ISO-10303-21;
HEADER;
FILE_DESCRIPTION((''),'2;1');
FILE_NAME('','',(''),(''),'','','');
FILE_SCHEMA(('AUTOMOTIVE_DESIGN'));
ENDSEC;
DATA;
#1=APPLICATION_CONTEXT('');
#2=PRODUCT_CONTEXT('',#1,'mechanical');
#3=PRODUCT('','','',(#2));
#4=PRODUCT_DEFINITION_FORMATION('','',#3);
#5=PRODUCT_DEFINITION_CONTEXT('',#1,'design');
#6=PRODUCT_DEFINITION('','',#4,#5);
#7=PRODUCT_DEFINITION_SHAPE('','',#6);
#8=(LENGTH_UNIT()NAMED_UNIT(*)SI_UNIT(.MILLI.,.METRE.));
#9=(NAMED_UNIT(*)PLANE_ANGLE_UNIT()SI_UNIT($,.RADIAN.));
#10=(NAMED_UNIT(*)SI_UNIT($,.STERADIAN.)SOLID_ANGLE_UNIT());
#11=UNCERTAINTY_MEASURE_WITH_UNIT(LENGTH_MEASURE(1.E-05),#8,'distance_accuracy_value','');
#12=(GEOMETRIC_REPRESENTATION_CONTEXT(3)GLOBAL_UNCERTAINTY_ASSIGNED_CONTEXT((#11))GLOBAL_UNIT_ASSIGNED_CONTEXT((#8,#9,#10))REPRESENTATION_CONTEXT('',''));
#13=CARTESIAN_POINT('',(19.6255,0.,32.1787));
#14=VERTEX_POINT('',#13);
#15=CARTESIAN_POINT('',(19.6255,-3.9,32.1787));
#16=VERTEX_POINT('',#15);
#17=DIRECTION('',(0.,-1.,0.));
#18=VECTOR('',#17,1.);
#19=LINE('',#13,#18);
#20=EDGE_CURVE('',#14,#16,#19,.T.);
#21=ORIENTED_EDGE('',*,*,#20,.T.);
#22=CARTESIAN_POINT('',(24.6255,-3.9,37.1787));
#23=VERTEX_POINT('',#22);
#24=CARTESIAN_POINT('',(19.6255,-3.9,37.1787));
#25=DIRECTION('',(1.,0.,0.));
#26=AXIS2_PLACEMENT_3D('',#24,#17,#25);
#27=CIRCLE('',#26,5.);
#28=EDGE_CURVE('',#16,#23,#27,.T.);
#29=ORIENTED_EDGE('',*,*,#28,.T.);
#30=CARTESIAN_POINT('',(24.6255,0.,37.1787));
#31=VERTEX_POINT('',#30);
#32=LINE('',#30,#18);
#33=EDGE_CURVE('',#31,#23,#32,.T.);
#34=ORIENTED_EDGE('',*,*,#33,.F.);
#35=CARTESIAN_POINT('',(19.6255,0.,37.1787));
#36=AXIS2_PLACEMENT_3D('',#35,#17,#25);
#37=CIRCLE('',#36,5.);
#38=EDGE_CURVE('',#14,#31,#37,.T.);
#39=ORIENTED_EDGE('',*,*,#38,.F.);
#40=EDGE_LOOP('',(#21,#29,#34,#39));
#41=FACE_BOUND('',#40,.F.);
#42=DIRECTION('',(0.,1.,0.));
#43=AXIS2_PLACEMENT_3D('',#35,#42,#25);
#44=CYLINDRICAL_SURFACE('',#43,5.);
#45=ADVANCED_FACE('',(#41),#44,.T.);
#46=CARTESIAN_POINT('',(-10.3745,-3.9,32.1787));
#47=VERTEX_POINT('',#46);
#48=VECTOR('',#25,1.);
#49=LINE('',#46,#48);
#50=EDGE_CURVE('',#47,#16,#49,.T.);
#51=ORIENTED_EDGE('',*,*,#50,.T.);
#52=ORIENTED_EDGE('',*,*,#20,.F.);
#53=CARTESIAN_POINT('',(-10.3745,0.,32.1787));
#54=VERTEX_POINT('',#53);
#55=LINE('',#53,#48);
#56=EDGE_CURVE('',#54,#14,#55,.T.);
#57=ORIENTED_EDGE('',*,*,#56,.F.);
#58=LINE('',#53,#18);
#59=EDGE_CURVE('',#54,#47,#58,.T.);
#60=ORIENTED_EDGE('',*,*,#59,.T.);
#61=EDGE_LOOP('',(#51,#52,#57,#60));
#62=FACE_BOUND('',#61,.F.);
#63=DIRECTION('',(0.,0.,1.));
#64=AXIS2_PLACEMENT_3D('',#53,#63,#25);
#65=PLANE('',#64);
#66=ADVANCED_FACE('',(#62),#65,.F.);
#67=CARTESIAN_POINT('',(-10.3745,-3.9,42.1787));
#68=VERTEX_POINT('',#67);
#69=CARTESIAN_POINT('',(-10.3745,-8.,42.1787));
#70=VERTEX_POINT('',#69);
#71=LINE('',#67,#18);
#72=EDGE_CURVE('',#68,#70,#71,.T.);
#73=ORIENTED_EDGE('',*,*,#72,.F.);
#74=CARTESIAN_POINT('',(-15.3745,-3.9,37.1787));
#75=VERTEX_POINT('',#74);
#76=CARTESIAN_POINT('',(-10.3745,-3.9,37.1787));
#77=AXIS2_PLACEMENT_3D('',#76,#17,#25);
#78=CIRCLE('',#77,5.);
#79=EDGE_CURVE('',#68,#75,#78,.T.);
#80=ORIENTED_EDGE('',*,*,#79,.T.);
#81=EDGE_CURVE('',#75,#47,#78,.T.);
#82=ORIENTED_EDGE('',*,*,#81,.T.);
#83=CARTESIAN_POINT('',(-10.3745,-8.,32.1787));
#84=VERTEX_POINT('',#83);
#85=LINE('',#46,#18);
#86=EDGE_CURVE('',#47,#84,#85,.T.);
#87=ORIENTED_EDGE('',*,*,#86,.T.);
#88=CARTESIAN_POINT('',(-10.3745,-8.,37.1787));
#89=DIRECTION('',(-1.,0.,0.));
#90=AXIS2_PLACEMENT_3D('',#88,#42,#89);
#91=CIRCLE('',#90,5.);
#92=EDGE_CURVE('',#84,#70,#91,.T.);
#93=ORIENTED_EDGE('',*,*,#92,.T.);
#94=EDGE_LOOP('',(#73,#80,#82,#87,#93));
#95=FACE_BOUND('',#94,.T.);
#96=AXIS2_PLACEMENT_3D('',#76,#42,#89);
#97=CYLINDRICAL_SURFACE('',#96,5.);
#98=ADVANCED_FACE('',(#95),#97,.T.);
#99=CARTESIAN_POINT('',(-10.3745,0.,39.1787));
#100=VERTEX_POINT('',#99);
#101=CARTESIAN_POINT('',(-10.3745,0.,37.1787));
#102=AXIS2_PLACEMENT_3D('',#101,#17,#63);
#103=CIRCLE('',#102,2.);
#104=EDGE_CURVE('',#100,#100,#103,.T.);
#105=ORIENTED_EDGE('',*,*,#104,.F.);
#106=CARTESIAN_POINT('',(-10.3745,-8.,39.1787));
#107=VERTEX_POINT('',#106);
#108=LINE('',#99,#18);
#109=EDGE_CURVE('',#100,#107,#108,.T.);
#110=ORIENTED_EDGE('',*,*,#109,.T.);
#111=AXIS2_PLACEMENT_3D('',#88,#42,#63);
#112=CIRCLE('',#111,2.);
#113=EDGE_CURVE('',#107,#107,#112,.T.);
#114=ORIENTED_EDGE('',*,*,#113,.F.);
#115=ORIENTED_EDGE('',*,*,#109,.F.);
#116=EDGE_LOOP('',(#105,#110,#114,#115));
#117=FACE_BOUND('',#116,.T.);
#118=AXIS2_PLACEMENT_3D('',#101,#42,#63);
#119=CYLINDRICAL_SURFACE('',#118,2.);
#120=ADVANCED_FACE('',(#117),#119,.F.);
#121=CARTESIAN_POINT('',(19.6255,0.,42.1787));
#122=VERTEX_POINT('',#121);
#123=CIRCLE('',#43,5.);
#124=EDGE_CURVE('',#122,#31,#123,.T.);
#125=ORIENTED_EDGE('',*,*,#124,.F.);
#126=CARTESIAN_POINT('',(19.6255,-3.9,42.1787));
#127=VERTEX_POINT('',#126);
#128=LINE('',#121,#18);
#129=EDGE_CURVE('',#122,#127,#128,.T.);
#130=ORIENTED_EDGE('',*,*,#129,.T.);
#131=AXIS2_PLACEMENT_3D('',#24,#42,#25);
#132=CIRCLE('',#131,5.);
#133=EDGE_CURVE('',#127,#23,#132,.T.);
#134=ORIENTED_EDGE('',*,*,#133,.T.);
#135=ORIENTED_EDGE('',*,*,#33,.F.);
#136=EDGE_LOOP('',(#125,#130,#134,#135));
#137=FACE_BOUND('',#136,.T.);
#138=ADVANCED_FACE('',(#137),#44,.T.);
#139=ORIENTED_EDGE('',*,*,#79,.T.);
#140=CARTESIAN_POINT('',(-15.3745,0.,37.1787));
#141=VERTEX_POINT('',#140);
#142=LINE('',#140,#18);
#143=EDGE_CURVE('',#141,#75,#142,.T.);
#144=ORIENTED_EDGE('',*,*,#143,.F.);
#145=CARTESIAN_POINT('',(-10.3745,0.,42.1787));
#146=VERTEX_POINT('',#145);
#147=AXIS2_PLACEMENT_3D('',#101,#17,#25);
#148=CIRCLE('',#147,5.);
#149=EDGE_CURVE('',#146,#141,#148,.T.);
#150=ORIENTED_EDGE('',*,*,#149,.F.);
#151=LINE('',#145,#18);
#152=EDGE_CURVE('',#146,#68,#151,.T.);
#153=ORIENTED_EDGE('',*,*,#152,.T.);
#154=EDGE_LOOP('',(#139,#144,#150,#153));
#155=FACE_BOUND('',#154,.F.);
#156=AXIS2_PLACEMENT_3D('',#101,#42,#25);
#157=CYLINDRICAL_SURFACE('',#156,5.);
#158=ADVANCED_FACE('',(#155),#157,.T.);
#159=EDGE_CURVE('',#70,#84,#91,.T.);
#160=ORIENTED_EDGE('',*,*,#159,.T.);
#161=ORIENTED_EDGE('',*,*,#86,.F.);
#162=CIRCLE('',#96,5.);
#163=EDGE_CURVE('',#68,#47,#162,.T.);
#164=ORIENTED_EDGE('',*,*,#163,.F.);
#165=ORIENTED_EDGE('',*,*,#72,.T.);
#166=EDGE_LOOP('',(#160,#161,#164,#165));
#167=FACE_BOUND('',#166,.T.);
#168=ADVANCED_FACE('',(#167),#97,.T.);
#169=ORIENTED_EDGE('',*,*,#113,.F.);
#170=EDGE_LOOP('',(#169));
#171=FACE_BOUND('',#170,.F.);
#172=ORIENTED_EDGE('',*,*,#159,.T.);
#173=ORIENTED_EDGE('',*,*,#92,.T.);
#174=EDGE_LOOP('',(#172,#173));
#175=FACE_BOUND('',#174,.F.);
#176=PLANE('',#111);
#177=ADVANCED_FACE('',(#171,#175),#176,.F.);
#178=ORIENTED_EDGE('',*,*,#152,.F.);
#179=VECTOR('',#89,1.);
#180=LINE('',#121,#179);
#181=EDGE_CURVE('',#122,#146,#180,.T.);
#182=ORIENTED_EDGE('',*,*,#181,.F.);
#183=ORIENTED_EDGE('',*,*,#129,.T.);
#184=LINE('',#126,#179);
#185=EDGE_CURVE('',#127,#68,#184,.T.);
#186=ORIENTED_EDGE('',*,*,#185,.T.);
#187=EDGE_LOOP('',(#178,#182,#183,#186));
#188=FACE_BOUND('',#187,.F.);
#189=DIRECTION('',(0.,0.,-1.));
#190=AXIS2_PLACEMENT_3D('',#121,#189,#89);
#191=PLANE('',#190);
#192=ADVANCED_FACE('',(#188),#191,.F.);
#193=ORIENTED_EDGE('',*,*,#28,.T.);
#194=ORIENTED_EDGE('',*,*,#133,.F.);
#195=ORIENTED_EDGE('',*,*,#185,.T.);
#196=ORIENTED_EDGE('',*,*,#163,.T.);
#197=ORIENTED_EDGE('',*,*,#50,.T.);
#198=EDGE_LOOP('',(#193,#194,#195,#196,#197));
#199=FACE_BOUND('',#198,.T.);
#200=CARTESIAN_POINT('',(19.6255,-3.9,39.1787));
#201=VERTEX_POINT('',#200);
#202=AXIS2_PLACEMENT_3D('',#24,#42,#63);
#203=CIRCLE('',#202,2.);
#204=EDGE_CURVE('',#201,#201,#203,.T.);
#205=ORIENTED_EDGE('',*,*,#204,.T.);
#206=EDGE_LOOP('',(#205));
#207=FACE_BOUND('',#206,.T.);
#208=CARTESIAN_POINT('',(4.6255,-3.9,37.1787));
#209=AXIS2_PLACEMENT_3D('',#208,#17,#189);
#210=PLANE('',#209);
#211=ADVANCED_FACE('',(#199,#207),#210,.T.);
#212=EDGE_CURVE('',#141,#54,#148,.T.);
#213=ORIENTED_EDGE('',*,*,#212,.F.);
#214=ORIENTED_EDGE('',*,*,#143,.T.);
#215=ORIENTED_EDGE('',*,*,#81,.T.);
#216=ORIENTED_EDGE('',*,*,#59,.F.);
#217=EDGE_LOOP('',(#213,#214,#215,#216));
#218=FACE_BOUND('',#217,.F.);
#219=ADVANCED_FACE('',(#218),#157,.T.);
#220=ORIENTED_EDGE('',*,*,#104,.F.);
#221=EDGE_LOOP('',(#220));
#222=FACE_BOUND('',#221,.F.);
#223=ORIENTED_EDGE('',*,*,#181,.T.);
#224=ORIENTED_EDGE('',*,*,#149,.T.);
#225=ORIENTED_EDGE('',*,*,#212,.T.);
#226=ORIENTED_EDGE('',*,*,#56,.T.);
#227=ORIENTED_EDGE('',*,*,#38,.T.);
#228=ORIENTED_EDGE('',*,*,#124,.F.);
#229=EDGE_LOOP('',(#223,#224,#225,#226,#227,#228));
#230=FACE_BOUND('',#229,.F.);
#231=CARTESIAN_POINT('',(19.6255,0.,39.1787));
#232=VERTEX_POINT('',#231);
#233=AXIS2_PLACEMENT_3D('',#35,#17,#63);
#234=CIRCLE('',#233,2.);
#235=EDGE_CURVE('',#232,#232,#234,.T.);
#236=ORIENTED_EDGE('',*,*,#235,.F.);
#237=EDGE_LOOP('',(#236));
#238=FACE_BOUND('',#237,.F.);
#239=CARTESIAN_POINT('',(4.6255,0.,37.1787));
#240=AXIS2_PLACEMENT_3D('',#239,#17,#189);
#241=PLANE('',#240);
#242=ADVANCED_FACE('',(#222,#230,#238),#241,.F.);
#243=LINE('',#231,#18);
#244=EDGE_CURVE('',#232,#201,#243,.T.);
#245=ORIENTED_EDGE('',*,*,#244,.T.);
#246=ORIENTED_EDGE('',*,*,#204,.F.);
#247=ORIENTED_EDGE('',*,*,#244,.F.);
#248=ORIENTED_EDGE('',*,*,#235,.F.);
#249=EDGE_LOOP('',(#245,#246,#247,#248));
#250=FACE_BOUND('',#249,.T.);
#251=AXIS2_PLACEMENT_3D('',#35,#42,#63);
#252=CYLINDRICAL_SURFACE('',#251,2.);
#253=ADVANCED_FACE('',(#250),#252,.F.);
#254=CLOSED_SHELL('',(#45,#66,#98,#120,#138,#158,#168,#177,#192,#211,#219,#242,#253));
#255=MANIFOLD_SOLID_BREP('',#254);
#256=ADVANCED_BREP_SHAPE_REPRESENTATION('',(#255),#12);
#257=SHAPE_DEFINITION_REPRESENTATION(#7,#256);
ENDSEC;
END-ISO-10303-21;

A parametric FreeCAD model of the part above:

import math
import FreeCAD as App
import Part
import Sketcher

doc = App.newDocument("Part")
body = doc.addObject("PartDesign::Body", "Body")

sketch1 = body.newObject("Sketcher::SketchObject", "Sketch")
sketch1.AttachmentSupport = (doc.getObject("XZ_Plane"), [""])
sketch1.MapMode = "FlatFace"
sketch1.addGeometry(Part.ArcOfCircle(Part.Circle(App.Vector(-10, 37, 0), App.Vector(0, 0, 1), 5), math.radians(90), math.radians(270)), False)
sketch1.addGeometry(Part.LineSegment(App.Vector(-10, 32, 0), App.Vector(20, 32, 0)), False)
sketch1.addGeometry(Part.ArcOfCircle(Part.Circle(App.Vector(20, 37, 0), App.Vector(0, 0, 1), 5), math.radians(-90), math.radians(90)), False)
sketch1.addGeometry(Part.LineSegment(App.Vector(20, 42, 0), App.Vector(-10, 42, 0)), False)
sketch1.addConstraint(Sketcher.Constraint("Tangent", 0, 2, 1, 1))
sketch1.addConstraint(Sketcher.Constraint("Tangent", 1, 2, 2, 1))
sketch1.addConstraint(Sketcher.Constraint("Tangent", 2, 2, 3, 1))
sketch1.addConstraint(Sketcher.Constraint("Tangent", 3, 2, 0, 1))
sketch1.addConstraint(Sketcher.Constraint("Horizontal", 1))
sketch1.addConstraint(Sketcher.Constraint("Horizontal", 3))
sketch1.addConstraint(Sketcher.Constraint("Radius", 0, 5.0))
sketch1.addConstraint(Sketcher.Constraint("DistanceX", 1, 1, 1, 2, 30.0))
sketch1.addConstraint(Sketcher.Constraint("DistanceX", 0, 3, -1, 1, 10.3745))
sketch1.addConstraint(Sketcher.Constraint("DistanceY", -1, 1, 0, 3, 37.1787))
pad1 = body.newObject("PartDesign::Pad", "Pad")
pad1.Profile = sketch1
pad1.Length = 3.9

sketch2 = body.newObject("Sketcher::SketchObject", "Sketch001")
sketch2.AttachmentSupport = (doc.getObject("XZ_Plane"), [""])
sketch2.MapMode = "FlatFace"
sketch2.AttachmentOffset = App.Placement(App.Vector(0, 0, 3.9), App.Rotation())
sketch2.addGeometry(Part.Circle(App.Vector(-10, 37, 0), App.Vector(0, 0, 1), 5), False)
sketch2.addConstraint(Sketcher.Constraint("Diameter", 0, 10.0))
sketch2.addConstraint(Sketcher.Constraint("DistanceX", 0, 3, -1, 1, 10.3745))
sketch2.addConstraint(Sketcher.Constraint("DistanceY", -1, 1, 0, 3, 37.1787))
pad2 = body.newObject("PartDesign::Pad", "Pad001")
pad2.Profile = sketch2
pad2.Length = 4.1

sketch3 = body.newObject("Sketcher::SketchObject", "Sketch002")
sketch3.AttachmentSupport = (doc.getObject("XZ_Plane"), [""])
sketch3.MapMode = "FlatFace"
sketch3.addGeometry(Part.Circle(App.Vector(-10.4, 37.2, 0), App.Vector(0, 0, 1), 2), False)
sketch3.addConstraint(Sketcher.Constraint("Diameter", 0, 4.0))
sketch3.addConstraint(Sketcher.Constraint("DistanceX", 0, 3, -1, 1, 10.3745))
sketch3.addConstraint(Sketcher.Constraint("DistanceY", -1, 1, 0, 3, 37.1787))
doc.recompute()
hole = body.newObject("PartDesign::Hole", "Hole")
hole.Profile = sketch3
hole.ThreadType = "None"
hole.Diameter = 4
hole.DepthType = "ThroughAll"
hole.Reversed = True

sketch4 = body.newObject("Sketcher::SketchObject", "Sketch003")
sketch4.AttachmentSupport = (doc.getObject("XZ_Plane"), [""])
sketch4.MapMode = "FlatFace"
sketch4.addGeometry(Part.Circle(App.Vector(19.6, 37.2, 0), App.Vector(0, 0, 1), 2), False)
sketch4.addConstraint(Sketcher.Constraint("Diameter", 0, 4.0))
sketch4.addConstraint(Sketcher.Constraint("DistanceX", -1, 1, 0, 3, 19.6255))
sketch4.addConstraint(Sketcher.Constraint("DistanceY", -1, 1, 0, 3, 37.1787))
doc.recompute()
hole2 = body.newObject("PartDesign::Hole", "Hole001")
hole2.Profile = sketch4
hole2.ThreadType = "None"
hole2.Diameter = 4
hole2.DepthType = "ThroughAll"
hole2.Reversed = True

doc.recompute()
